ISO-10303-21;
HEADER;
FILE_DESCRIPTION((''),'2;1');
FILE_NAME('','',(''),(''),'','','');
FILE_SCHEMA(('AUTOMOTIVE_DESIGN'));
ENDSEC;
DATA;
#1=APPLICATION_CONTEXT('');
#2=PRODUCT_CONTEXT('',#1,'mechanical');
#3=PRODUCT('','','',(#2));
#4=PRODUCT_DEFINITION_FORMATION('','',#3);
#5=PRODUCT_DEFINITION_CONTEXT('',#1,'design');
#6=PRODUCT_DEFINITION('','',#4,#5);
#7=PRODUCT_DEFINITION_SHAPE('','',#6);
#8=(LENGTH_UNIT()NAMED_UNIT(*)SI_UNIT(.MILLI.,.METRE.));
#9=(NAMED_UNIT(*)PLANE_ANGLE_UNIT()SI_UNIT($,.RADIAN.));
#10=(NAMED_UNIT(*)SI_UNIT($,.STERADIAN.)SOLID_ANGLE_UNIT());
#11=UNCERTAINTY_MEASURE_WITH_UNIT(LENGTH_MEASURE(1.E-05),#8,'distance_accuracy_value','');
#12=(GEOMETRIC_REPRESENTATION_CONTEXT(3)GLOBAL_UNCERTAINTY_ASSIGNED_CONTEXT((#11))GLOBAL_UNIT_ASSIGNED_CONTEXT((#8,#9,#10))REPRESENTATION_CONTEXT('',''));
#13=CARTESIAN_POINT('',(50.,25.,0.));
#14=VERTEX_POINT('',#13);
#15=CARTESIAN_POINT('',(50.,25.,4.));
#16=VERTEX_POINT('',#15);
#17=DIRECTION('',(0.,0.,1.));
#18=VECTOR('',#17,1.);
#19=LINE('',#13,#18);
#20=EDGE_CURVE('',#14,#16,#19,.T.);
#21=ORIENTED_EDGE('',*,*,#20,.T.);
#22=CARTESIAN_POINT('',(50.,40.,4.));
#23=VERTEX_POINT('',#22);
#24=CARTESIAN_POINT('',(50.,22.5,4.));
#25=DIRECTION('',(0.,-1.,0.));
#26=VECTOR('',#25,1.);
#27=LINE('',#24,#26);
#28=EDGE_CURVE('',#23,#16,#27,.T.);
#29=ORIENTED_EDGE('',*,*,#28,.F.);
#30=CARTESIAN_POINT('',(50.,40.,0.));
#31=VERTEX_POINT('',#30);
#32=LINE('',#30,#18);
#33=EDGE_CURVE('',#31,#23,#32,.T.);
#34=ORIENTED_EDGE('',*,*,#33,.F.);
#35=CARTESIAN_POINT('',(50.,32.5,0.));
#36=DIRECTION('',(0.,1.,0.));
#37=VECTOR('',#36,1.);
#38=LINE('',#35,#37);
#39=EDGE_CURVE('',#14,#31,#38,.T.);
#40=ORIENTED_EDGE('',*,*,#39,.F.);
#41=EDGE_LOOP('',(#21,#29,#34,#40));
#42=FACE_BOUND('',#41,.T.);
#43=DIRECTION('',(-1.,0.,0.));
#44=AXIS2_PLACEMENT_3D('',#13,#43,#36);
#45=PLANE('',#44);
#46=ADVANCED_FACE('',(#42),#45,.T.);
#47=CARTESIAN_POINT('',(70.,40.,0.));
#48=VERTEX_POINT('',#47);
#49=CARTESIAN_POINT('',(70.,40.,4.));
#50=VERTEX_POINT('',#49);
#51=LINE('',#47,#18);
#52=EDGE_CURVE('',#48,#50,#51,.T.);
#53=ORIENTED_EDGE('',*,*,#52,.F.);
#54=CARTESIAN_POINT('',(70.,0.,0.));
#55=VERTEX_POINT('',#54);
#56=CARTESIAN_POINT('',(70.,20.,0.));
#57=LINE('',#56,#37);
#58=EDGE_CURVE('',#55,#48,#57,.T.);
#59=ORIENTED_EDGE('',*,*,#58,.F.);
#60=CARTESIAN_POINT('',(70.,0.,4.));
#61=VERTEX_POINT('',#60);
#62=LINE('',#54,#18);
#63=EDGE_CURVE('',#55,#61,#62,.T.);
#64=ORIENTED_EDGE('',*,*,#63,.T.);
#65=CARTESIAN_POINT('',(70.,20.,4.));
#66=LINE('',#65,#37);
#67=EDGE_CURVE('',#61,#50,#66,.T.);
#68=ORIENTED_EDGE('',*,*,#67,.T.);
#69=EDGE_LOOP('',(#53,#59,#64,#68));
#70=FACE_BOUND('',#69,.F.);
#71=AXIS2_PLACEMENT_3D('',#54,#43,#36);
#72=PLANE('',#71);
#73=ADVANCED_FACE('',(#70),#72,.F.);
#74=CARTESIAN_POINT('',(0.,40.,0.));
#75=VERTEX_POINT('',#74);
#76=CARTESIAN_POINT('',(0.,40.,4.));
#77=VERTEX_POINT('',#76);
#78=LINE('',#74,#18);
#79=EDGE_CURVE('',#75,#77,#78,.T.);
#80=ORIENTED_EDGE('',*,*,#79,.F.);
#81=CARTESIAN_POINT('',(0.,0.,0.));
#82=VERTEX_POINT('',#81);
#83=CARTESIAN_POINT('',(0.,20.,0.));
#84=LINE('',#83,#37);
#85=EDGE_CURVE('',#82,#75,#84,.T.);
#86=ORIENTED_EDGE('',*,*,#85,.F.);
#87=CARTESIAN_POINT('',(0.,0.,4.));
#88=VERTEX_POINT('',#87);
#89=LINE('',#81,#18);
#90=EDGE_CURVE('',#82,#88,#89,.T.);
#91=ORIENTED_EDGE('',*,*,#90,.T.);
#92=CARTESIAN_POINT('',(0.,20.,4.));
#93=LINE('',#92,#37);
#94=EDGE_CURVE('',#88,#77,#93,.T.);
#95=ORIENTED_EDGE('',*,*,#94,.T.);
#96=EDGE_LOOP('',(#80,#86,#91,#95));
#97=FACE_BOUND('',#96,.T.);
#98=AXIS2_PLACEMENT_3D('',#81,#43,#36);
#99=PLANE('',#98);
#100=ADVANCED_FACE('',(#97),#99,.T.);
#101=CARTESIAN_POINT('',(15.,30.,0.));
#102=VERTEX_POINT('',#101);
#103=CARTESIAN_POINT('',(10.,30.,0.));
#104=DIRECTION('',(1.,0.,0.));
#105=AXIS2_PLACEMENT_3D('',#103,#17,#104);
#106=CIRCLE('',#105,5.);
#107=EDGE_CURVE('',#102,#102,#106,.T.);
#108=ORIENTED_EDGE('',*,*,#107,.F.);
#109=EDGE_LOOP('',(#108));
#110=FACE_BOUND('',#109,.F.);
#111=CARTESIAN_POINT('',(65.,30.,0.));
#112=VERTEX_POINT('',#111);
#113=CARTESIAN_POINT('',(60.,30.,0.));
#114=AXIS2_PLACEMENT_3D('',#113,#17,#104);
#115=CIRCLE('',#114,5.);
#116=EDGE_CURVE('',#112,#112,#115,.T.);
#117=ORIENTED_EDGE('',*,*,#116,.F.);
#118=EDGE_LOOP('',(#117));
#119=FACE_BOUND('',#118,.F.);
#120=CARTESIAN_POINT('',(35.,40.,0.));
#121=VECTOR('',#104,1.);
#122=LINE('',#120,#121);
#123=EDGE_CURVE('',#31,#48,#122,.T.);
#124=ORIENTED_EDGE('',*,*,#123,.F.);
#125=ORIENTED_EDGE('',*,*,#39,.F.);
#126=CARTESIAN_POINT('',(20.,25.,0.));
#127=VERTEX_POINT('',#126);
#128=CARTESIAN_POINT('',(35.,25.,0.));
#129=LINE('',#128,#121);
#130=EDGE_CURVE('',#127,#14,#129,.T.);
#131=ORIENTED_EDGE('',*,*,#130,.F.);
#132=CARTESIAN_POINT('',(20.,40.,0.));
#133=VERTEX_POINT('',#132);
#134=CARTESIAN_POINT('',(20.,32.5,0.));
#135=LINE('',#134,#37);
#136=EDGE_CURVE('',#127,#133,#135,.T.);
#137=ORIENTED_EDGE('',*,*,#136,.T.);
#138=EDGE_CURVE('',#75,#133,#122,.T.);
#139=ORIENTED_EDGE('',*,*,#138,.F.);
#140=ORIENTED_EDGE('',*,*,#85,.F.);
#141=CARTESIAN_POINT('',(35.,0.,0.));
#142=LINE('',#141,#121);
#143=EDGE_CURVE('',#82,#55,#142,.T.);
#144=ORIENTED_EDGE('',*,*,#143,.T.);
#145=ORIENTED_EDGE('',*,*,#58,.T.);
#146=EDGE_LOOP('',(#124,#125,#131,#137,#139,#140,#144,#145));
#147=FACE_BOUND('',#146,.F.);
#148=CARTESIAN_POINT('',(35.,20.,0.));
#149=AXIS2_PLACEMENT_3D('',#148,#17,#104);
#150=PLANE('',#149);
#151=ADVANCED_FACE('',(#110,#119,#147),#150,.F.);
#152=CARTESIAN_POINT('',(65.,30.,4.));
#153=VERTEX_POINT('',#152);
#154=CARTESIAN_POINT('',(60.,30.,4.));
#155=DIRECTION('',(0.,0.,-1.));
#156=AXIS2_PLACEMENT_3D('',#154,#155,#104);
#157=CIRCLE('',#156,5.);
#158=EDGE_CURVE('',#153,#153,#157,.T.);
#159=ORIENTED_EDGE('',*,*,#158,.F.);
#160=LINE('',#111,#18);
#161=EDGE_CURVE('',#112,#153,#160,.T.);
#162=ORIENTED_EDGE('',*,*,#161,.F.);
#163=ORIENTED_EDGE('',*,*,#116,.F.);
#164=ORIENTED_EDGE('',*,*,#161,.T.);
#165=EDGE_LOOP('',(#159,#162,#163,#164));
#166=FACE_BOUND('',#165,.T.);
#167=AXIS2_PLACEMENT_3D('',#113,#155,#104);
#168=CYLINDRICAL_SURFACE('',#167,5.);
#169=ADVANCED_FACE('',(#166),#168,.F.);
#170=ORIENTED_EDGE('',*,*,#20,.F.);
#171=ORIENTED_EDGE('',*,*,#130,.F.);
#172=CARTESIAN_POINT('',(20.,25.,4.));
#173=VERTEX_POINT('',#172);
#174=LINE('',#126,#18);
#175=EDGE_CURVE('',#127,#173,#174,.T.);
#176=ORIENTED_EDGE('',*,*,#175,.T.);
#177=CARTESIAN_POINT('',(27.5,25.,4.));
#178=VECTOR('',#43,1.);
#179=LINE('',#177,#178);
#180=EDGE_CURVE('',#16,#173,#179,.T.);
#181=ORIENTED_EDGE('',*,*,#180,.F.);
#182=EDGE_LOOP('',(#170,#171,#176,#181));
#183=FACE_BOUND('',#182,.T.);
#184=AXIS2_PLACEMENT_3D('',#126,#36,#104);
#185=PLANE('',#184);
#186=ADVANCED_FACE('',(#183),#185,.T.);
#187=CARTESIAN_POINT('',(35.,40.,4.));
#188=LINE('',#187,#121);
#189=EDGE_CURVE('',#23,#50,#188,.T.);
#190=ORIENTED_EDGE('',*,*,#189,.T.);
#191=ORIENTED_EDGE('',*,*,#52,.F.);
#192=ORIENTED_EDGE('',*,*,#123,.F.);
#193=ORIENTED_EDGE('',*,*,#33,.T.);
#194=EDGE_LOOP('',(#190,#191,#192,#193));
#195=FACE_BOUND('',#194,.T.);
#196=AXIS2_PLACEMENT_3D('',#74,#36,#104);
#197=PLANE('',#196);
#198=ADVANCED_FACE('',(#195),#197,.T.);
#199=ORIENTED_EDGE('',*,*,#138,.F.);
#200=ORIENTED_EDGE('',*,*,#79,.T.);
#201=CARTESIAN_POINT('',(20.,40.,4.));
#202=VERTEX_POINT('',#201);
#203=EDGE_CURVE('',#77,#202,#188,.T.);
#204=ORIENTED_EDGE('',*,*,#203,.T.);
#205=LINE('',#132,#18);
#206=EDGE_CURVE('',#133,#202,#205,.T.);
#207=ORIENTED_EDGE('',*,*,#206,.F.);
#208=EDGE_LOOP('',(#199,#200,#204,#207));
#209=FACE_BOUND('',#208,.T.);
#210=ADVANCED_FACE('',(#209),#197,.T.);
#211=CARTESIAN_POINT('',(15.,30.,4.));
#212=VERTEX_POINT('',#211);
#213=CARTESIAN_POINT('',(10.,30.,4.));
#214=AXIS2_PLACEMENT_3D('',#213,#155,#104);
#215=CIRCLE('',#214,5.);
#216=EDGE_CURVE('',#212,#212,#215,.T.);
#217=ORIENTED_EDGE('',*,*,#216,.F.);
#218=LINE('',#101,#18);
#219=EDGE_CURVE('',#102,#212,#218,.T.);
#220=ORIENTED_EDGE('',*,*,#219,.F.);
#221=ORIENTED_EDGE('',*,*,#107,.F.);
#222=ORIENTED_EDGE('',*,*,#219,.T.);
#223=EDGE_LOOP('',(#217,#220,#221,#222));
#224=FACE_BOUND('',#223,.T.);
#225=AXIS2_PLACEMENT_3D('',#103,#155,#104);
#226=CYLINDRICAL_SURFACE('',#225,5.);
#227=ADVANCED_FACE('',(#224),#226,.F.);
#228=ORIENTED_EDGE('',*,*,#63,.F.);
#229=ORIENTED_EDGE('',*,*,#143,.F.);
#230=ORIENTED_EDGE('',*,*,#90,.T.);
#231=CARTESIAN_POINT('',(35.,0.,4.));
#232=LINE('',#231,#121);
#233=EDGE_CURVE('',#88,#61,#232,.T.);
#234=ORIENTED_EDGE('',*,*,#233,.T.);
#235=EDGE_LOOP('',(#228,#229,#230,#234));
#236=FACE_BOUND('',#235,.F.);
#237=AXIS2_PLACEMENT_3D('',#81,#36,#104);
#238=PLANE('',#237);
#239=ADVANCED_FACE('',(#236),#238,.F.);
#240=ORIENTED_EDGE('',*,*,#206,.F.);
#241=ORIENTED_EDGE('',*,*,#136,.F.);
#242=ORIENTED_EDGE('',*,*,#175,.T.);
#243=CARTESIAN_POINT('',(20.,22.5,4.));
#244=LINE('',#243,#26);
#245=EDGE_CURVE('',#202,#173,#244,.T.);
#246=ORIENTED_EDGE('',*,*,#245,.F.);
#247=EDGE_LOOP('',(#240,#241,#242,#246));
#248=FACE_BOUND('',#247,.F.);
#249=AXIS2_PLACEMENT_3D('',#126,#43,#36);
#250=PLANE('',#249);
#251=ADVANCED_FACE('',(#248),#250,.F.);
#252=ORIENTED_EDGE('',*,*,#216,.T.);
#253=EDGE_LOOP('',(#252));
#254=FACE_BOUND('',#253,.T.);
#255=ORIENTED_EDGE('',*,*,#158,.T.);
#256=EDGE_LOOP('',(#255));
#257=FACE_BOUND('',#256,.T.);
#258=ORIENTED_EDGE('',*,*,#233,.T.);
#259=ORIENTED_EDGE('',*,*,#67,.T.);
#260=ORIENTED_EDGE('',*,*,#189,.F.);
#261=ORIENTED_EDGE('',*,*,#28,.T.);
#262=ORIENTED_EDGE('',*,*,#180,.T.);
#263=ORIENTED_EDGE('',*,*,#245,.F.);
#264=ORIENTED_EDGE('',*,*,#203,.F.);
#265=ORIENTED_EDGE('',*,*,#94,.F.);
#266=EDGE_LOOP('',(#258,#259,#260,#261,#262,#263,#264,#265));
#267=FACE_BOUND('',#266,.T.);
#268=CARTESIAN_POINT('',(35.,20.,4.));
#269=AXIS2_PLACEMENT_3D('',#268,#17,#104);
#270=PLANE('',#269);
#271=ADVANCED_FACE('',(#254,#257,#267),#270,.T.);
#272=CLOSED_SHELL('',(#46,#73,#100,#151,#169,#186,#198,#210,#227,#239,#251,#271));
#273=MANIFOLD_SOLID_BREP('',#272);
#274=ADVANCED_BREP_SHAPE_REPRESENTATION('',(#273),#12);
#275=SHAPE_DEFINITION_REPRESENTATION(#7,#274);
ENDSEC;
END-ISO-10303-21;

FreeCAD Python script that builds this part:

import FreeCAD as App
import Part
import Sketcher


def add_polygon(sketch, points):
    """Adds a closed chain of lines whose ends are joined by coincident constraints."""
    first, n = sketch.GeometryCount, len(points)
    for a, b in zip(points, points[1:] + points[:1]):
        sketch.addGeometry(Part.LineSegment(App.Vector(*a, 0), App.Vector(*b, 0)), False)
    for i in range(n):
        sketch.addConstraint(Sketcher.Constraint("Coincident", first + i, 2, first + (i + 1) % n, 1))

doc = App.newDocument("Part")
body = doc.addObject("PartDesign::Body", "Body")

sketch1 = body.newObject("Sketcher::SketchObject", "Sketch")
sketch1.AttachmentSupport = (doc.getObject("XY_Plane"), [""])
sketch1.MapMode = "FlatFace"
sketch1.addGeometry(Part.Circle(App.Vector(60, 30, 0), App.Vector(0, 0, 1), 5), False)
sketch1.addConstraint([
    Sketcher.Constraint("Diameter", 0, 10.0),
    Sketcher.Constraint("DistanceX", -1, 1, 0, 3, 60.0),
    Sketcher.Constraint("DistanceY", -1, 1, 0, 3, 30.0),
])
pad1 = body.newObject("PartDesign::Pad", "Pad")
pad1.Profile = sketch1
pad1.Length = 10
body2 = doc.addObject("PartDesign::Body", "Body001")

sketch2 = body2.newObject("Sketcher::SketchObject", "Sketch001")
sketch2.AttachmentSupport = (doc.getObject("XY_Plane001"), [""])
sketch2.MapMode = "FlatFace"
sketch2.addGeometry(Part.Circle(App.Vector(10, 30, 0), App.Vector(0, 0, 1), 5), False)
sketch2.addConstraint([
    Sketcher.Constraint("Diameter", 0, 10.0),
    Sketcher.Constraint("DistanceX", -1, 1, 0, 3, 10.0),
    Sketcher.Constraint("DistanceY", -1, 1, 0, 3, 30.0),
])
pad2 = body2.newObject("PartDesign::Pad", "Pad001")
pad2.Profile = sketch2
pad2.Length = 10
body3 = doc.addObject("PartDesign::Body", "Body002")

sketch3 = body3.newObject("Sketcher::SketchObject", "Sketch002")
sketch3.AttachmentSupport = (doc.getObject("XY_Plane002"), [""])
sketch3.MapMode = "FlatFace"
add_polygon(sketch3, [(20, 40), (20, 25), (50, 25), (50, 40)])
sketch3.addConstraint([
    Sketcher.Constraint("Vertical", 0),
    Sketcher.Constraint("Horizontal", 1),
    Sketcher.Constraint("Vertical", 2),
    Sketcher.Constraint("Horizontal", 3),
    Sketcher.Constraint("DistanceX", 1, 1, 1, 2, 30.0),
    Sketcher.Constraint("DistanceY", 0, 2, 0, 1, 15.0),
    Sketcher.Constraint("DistanceX", -1, 1, 0, 2, 20.0),
    Sketcher.Constraint("DistanceY", -1, 1, 0, 2, 25.0),
])
pad3 = body3.newObject("PartDesign::Pad", "Pad002")
pad3.Profile = sketch3
pad3.Length = 10
body4 = doc.addObject("PartDesign::Body", "Body003")

sketch4 = body4.newObject("Sketcher::SketchObject", "Sketch003")
sketch4.AttachmentSupport = (doc.getObject("XY_Plane003"), [""])
sketch4.MapMode = "FlatFace"
add_polygon(sketch4, [(0, 40), (0, 0), (70, 0), (70, 40)])
sketch4.addConstraint([
    Sketcher.Constraint("Vertical", 0),
    Sketcher.Constraint("Horizontal", 1),
    Sketcher.Constraint("Vertical", 2),
    Sketcher.Constraint("Horizontal", 3),
    Sketcher.Constraint("Coincident", 0, 2, -1, 1),
    Sketcher.Constraint("DistanceX", 1, 1, 1, 2, 70.0),
    Sketcher.Constraint("DistanceY", 0, 2, 0, 1, 40.0),
])
pad4 = body4.newObject("PartDesign::Pad", "Pad003")
pad4.Profile = sketch4
pad4.Length = 4
doc.recompute()

boolean = body4.newObject("PartDesign::Boolean", "Boolean")
boolean.Type = "Cut"
boolean.addObjects([body3])
doc.recompute()

boolean2 = body4.newObject("PartDesign::Boolean", "Boolean001")
boolean2.Type = "Cut"
boolean2.addObjects([body2])
doc.recompute()

boolean3 = body4.newObject("PartDesign::Boolean", "Boolean002")
boolean3.Type = "Cut"
boolean3.addObjects([body])

doc.recompute()
